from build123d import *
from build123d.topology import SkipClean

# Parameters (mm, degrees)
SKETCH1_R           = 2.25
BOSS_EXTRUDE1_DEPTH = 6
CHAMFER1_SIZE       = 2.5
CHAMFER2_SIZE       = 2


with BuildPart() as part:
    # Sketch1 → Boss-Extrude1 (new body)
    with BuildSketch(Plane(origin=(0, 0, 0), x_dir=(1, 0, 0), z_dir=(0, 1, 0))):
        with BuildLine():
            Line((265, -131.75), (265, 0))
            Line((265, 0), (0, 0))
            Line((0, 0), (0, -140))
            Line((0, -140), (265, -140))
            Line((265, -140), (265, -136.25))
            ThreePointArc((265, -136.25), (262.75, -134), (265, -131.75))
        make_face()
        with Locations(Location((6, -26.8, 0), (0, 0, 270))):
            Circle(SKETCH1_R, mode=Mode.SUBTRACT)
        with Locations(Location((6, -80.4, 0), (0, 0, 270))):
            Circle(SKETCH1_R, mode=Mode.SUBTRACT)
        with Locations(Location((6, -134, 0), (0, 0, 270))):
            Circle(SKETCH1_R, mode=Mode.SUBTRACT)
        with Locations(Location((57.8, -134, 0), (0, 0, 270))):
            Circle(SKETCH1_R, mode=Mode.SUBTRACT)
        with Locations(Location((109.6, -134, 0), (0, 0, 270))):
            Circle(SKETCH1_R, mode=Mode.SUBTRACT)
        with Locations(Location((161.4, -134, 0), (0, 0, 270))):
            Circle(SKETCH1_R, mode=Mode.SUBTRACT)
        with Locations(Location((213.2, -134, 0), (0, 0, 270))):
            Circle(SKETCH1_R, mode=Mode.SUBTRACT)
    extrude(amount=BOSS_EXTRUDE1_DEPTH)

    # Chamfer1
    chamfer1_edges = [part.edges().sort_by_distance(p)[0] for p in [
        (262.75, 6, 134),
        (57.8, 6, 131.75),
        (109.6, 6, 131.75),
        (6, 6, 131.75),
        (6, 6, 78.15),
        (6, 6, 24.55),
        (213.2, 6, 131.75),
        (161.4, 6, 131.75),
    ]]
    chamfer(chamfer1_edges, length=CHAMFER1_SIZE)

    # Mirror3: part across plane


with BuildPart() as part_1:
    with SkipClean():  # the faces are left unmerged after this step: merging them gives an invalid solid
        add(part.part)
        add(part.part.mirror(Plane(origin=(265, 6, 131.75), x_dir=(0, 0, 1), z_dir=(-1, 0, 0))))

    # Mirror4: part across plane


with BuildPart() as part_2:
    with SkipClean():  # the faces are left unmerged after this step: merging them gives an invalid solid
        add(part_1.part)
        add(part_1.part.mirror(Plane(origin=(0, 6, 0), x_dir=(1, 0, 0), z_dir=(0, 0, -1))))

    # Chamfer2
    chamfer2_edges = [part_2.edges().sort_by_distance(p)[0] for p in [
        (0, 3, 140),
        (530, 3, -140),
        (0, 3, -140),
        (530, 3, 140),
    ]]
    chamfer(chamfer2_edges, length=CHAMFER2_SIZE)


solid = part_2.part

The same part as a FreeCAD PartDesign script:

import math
import FreeCAD as App
import Part
import Sketcher
Q = App.Units.Quantity


def edges_at(feature, points):
    """Names of the edges that pass closest to the given points."""
    edges = feature.Shape.Edges
    near = lambda p: min(range(len(edges)), key=lambda i: edges[i].distToShape(Part.Vertex(*p))[0])
    return sorted({f"Edge{near(p) + 1}" for p in points})

doc = App.newDocument("Part")
body = doc.addObject("PartDesign::Body", "Body")

sketch1 = doc.addObject("Sketcher::SketchObject", "Sketch")
body.addObject(sketch1)
sketch1.AttachmentSupport = (doc.XZ_Plane, [""])
sketch1.MapMode = "FlatFace"
sketch1.addGeometry([
    Part.LineSegment(App.Vector(265, 131.75, 0), App.Vector(265, 0, 0)),
    Part.LineSegment(App.Vector(265, 0, 0), App.Vector(0, 0, 0)),
    Part.LineSegment(App.Vector(0, 0, 0), App.Vector(0, 140, 0)),
    Part.LineSegment(App.Vector(0, 140, 0), App.Vector(265, 140, 0)),
    Part.LineSegment(App.Vector(265, 140, 0), App.Vector(265, 136.25, 0)),
    Part.ArcOfCircle(Part.Circle(App.Vector(265, 134, 0), App.Vector(0, 0, 1), 2.25), math.radians(90), math.radians(270)),
    Part.Circle(App.Vector(6, 134, 0), App.Vector(0, 0, 1), 2.25),
    Part.Circle(App.Vector(57.8, 134, 0), App.Vector(0, 0, 1), 2.25),
    Part.Circle(App.Vector(109.6, 134, 0), App.Vector(0, 0, 1), 2.25),
    Part.Circle(App.Vector(6, 80.4, 0), App.Vector(0, 0, 1), 2.25),
    Part.Circle(App.Vector(161.4, 134, 0), App.Vector(0, 0, 1), 2.25),
    Part.Circle(App.Vector(213.2, 134, 0), App.Vector(0, 0, 1), 2.25),
    Part.Circle(App.Vector(6, 26.8, 0), App.Vector(0, 0, 1), 2.25),
], False)
sketch1.addConstraint([
    Sketcher.Constraint("Coincident", 0, 2, 1, 1),
    Sketcher.Constraint("Coincident", 1, 2, 2, 1),
    Sketcher.Constraint("Coincident", 2, 2, 3, 1),
    Sketcher.Constraint("Coincident", 3, 2, 4, 1),
    Sketcher.Constraint("Coincident", 4, 2, 5, 1),
    Sketcher.Constraint("Coincident", 5, 2, 0, 1),
    Sketcher.Constraint("Vertical", 0),
    Sketcher.Constraint("Horizontal", 1),
    Sketcher.Constraint("Vertical", 2),
    Sketcher.Constraint("Horizontal", 3),
    Sketcher.Constraint("Vertical", 4),
    Sketcher.Constraint("Coincident", 1, 2, -1, 1),
    Sketcher.Constraint("Equal", 5, 6),
    Sketcher.Constraint("Equal", 6, 7),
    Sketcher.Constraint("Equal", 7, 8),
    Sketcher.Constraint("Equal", 8, 9),
    Sketcher.Constraint("Equal", 9, 10),
    Sketcher.Constraint("Equal", 10, 11),
    Sketcher.Constraint("Equal", 11, 12),
    Sketcher.Constraint("Horizontal", 5, 3, 6, 3),
    Sketcher.Constraint("Horizontal", 6, 3, 7, 3),
    Sketcher.Constraint("Horizontal", 7, 3, 8, 3),
    Sketcher.Constraint("Horizontal", 8, 3, 10, 3),
    Sketcher.Constraint("Horizontal", 10, 3, 11, 3),
    Sketcher.Constraint("Vertical", 6, 3, 9, 3),
    Sketcher.Constraint("Vertical", 9, 3, 12, 3),
    Sketcher.Constraint("Vertical", 5, 3, 0, 2),
    Sketcher.Constraint("Vertical", 0, 2, 3, 2),
    Sketcher.Constraint("Diameter", 6, Q("4.5 mm")),
    Sketcher.Constraint("DistanceX", 1, 2, 1, 1, Q("265 mm")),
    Sketcher.Constraint("DistanceY", 2, 1, 2, 2, Q("140 mm")),
    Sketcher.Constraint("DistanceY", -1, 1, 5, 3, Q("134 mm")),
    Sketcher.Constraint("DistanceX", -1, 1, 6, 3, Q("6 mm")),
    Sketcher.Constraint("DistanceX", -1, 1, 7, 3, Q("57.8 mm")),
    Sketcher.Constraint("DistanceX", -1, 1, 8, 3, Q("109.6 mm")),
    Sketcher.Constraint("DistanceY", -1, 1, 9, 3, Q("80.4 mm")),
    Sketcher.Constraint("DistanceX", -1, 1, 10, 3, Q("161.4 mm")),
    Sketcher.Constraint("DistanceX", -1, 1, 11, 3, Q("213.2 mm")),
    Sketcher.Constraint("DistanceY", -1, 1, 12, 3, Q("26.8 mm")),
])
pad1 = doc.addObject("PartDesign::Pad", "Pad")
body.addObject(pad1)
pad1.Profile = sketch1
pad1.Length = 6
pad1.Reversed = True
doc.recompute()

chamfer = doc.addObject("PartDesign::Chamfer", "Chamfer")
body.addObject(chamfer)
chamfer.Base = (pad1, edges_at(pad1, [
    (262.75, 6, 134),
    (57.8, 6, 131.75),
    (109.6, 6, 131.75),
    (6, 6, 131.75),
    (6, 6, 78.15),
    (6, 6, 24.55),
    (213.2, 6, 131.75),
    (161.4, 6, 131.75),
]))
chamfer.Size = 2.5
body2 = doc.addObject("PartDesign::Body", "Body001")
doc.recompute()

body2.BaseFeature = body
doc.recompute()

mirroring = doc.addObject("Part::Mirroring", "Mirroring")
mirroring.Source = body
mirroring.Base = App.Vector(265, 6, 131.75)
mirroring.Normal = App.Vector(-1, 0, 0)
body3 = doc.addObject("PartDesign::Body", "Body002")
body3.BaseFeature = mirroring
boolean = doc.addObject("PartDesign::Boolean", "Boolean")
body2.addObject(boolean)
boolean.Type = "Fuse"
boolean.addObjects([body3])
doc.recompute()
body4 = doc.addObject("PartDesign::Body", "Body003")
doc.recompute()

body4.BaseFeature = body2
doc.recompute()

mirroring2 = doc.addObject("Part::Mirroring", "Mirroring001")
mirroring2.Source = body2
mirroring2.Base = App.Vector(0, 6, 0)
mirroring2.Normal = App.Vector(0, 0, -1)
body5 = doc.addObject("PartDesign::Body", "Body004")
body5.BaseFeature = mirroring2
boolean2 = doc.addObject("PartDesign::Boolean", "Boolean001")
body4.addObject(boolean2)
boolean2.Type = "Fuse"
boolean2.addObjects([body5])
doc.recompute()

chamfer2 = doc.addObject("PartDesign::Chamfer", "Chamfer001")
body4.addObject(chamfer2)
chamfer2.Base = (boolean2, edges_at(boolean2, [
    (0, 3, 140),
    (530, 3, -140),
    (0, 3, -140),
    (530, 3, 140),
]))
chamfer2.Size = 2
mirroring.Visibility = False
mirroring2.Visibility = False

doc.recompute()
